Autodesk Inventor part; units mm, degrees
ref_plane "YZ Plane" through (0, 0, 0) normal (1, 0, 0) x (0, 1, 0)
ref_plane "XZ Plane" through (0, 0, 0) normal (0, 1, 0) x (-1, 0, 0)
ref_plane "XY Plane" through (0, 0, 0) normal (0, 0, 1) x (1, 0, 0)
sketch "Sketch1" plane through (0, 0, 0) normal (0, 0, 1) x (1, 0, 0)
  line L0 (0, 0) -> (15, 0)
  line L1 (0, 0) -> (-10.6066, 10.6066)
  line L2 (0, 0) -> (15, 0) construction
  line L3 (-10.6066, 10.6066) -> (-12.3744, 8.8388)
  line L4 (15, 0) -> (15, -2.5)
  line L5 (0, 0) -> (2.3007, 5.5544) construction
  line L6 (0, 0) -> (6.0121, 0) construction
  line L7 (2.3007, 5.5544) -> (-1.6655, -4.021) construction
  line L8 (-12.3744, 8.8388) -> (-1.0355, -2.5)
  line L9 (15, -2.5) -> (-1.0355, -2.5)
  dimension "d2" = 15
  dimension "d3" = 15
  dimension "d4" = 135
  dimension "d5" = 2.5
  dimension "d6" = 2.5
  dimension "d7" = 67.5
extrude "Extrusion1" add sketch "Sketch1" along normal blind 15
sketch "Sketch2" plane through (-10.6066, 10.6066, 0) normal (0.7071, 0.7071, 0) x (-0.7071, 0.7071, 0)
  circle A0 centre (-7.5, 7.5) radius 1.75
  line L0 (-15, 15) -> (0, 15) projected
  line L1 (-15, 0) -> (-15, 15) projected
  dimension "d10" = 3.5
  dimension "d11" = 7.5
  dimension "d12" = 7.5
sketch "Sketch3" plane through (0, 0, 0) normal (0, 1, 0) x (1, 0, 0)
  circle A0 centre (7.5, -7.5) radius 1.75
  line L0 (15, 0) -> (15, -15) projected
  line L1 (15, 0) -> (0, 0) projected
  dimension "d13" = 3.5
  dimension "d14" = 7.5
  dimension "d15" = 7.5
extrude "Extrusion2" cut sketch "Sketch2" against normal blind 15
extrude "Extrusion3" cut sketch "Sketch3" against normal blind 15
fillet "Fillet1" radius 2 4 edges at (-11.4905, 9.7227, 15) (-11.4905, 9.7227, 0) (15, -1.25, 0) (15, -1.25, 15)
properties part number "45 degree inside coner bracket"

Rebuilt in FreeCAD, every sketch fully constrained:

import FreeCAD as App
import Part
import Sketcher
Q = App.Units.Quantity


def edges_at(feature, points):
    """Names of the edges that pass closest to the given points."""
    edges = feature.Shape.Edges
    near = lambda p: min(range(len(edges)), key=lambda i: edges[i].distToShape(Part.Vertex(*p))[0])
    return sorted({f"Edge{near(p) + 1}" for p in points})

doc = App.newDocument("Part")
params = doc.addObject("Spreadsheet::Sheet", "Params")
for row, (alias, value) in enumerate([
    ("sketch1_width", "15 mm"),
    ("sketch1_length", "15 mm"),
    ("sketch1_height", "2.5 mm"),
    ("sketch1_length2", "2.5 mm"),
    ("pad1_length", "15 mm"),
    ("sketch2_diameter", "3.5 mm"),
    ("pocket1_length", "15 mm"),
    ("sketch3_diameter", "3.5 mm"),
    ("pocket2_length", "15 mm"),
    ("fillet_radius", "2 mm"),
], start=1):
    params.set(f"A{row}", alias)
    params.set(f"B{row}", "=" + value)
    params.setAlias(f"B{row}", alias)

body = doc.addObject("PartDesign::Body", "Body")

sketch1 = body.newObject("Sketcher::SketchObject", "Sketch")
sketch1.AttachmentSupport = (doc.getObject("XY_Plane"), [""])
sketch1.MapMode = "FlatFace"
sketch1.addGeometry([
    Part.LineSegment(App.Vector(15, 0, 0), App.Vector(0, 0, 0)),
    Part.LineSegment(App.Vector(0, 0, 0), App.Vector(-10.6066, 10.6066, 0)),
    Part.LineSegment(App.Vector(-10.6066, 10.6066, 0), App.Vector(-12.3744, 8.8388, 0)),
    Part.LineSegment(App.Vector(-12.3744, 8.8388, 0), App.Vector(-1.0355, -2.5, 0)),
    Part.LineSegment(App.Vector(-1.0355, -2.5, 0), App.Vector(15, -2.5, 0)),
    Part.LineSegment(App.Vector(15, -2.5, 0), App.Vector(15, 0, 0)),
], False)
sketch1.addConstraint([
    Sketcher.Constraint("Coincident", 0, 2, 1, 1),
    Sketcher.Constraint("Coincident", 1, 2, 2, 1),
    Sketcher.Constraint("Coincident", 2, 2, 3, 1),
    Sketcher.Constraint("Coincident", 3, 2, 4, 1),
    Sketcher.Constraint("Coincident", 4, 2, 5, 1),
    Sketcher.Constraint("Coincident", 5, 2, 0, 1),
    Sketcher.Constraint("Horizontal", 0),
    Sketcher.Constraint("Horizontal", 4),
    Sketcher.Constraint("Vertical", 5),
    Sketcher.Constraint("Coincident", 0, 2, -1, 1),
    Sketcher.Constraint("Perpendicular", 1, 2),
    Sketcher.Constraint("Perpendicular", 2, 3),
    Sketcher.Constraint("DistanceX", 0, 2, 0, 1, Q("15 mm")),
    Sketcher.Constraint("Angle", 1, Q("135 deg")),
    Sketcher.Constraint("Distance", 1, Q("15 mm")),
    Sketcher.Constraint("DistanceY", 5, 1, 5, 2, Q("2.5 mm")),
    Sketcher.Constraint("Distance", 2, Q("2.5 mm")),
])
sketch1.setExpression("Constraints[12]", "Params.sketch1_width")
sketch1.setExpression("Constraints[14]", "Params.sketch1_length")
sketch1.setExpression("Constraints[15]", "Params.sketch1_height")
sketch1.setExpression("Constraints[16]", "Params.sketch1_length2")
pad1 = body.newObject("PartDesign::Pad", "Pad")
pad1.Profile = sketch1
pad1.setExpression("Length", "Params.pad1_length")

sketch2 = body.newObject("Sketcher::SketchObject", "Sketch001")
sketch2.Placement = App.Placement(App.Vector(-10.6066, 10.6066, 0), App.Rotation(App.Vector(-0.707106781, 0.707106781, 0), App.Vector(0, 0, 0.999999999), App.Vector(0.707106781, 0.707106781, 0), "ZXY"))
sketch2.addGeometry(Part.Circle(App.Vector(-7.5, 7.5, 0), App.Vector(0, 0, 1), 1.75), False)
sketch2.addConstraint([
    Sketcher.Constraint("Diameter", 0, Q("3.5 mm")),
    Sketcher.Constraint("DistanceX", 0, 3, -1, 1, Q("7.5 mm")),
    Sketcher.Constraint("DistanceY", -1, 1, 0, 3, Q("7.5 mm")),
])
sketch2.setExpression("Constraints[0]", "Params.sketch2_diameter")
pocket1 = body.newObject("PartDesign::Pocket", "Pocket")
pocket1.Profile = sketch2
pocket1.setExpression("Length", "Params.pocket1_length")

sketch3 = body.newObject("Sketcher::SketchObject", "Sketch002")
sketch3.AttachmentSupport = (doc.getObject("XZ_Plane"), [""])
sketch3.MapMode = "FlatFace"
sketch3.addGeometry(Part.Circle(App.Vector(7.5, 7.5, 0), App.Vector(0, 0, 1), 1.75), False)
sketch3.addConstraint([
    Sketcher.Constraint("Diameter", 0, Q("3.5 mm")),
    Sketcher.Constraint("DistanceX", -1, 1, 0, 3, Q("7.5 mm")),
    Sketcher.Constraint("DistanceY", -1, 1, 0, 3, Q("7.5 mm")),
])
sketch3.setExpression("Constraints[0]", "Params.sketch3_diameter")
pocket2 = body.newObject("PartDesign::Pocket", "Pocket001")
pocket2.Profile = sketch3
pocket2.setExpression("Length", "Params.pocket2_length")
pocket2.Reversed = True
doc.recompute()

fillet = body.newObject("PartDesign::Fillet", "Fillet")
fillet.Base = (pocket2, edges_at(pocket2, [
    (-11.491, 9.723, 15),
    (-11.491, 9.723, 0),
    (15, -1.25, 0),
    (15, -1.25, 15),
]))
fillet.setExpression("Radius", "Params.fillet_radius")

doc.recompute()
